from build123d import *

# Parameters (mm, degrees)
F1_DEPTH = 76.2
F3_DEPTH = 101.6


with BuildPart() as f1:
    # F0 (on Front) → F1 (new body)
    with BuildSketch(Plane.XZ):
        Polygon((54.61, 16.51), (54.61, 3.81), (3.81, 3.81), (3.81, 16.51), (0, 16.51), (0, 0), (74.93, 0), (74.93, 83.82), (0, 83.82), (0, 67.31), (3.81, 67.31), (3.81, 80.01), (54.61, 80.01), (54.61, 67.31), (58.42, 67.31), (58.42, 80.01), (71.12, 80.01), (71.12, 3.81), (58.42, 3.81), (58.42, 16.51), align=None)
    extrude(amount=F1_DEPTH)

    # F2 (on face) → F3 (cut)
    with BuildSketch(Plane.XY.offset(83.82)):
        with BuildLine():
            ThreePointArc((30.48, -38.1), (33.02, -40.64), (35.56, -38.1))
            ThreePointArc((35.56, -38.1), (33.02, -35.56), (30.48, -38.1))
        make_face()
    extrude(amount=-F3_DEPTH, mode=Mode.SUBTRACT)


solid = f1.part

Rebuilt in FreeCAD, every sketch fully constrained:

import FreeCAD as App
import Part
import Sketcher
from FreeCAD import Vector
Q = App.Units.Quantity


def add_polygon(sketch, points):
    """Adds a closed chain of lines whose ends are joined by coincident constraints."""
    first, n = sketch.GeometryCount, len(points)
    for a, b in zip(points, points[1:] + points[:1]):
        sketch.addGeometry(Part.LineSegment(App.Vector(*a, 0), App.Vector(*b, 0)), False)
    for i in range(n):
        sketch.addConstraint(Sketcher.Constraint("Coincident", first + i, 2, first + (i + 1) % n, 1))

doc = App.newDocument("Part")
params = doc.addObject("Spreadsheet::Sheet", "Params")
for row, (alias, value) in enumerate([
    ("sketch1_width", "2 in"),
    ("sketch1_height", "3 in"),
    ("sketch1_width2", "0.5 in"),
    ("sketch1_height2", "3.3 in"),
    ("sketch1_width3", "0.15 in"),
    ("pad1_length", "3 in"),
    ("sketch2_diameter", "0.2 in"),
    ("pocket1_length", "4 in"),
], start=1):
    params.set(f"A{row}", alias)
    params.set(f"B{row}", "=" + value)
    params.setAlias(f"B{row}", alias)

body = doc.addObject("PartDesign::Body", "Body")

# Sketch on XZ plane
sketch1 = body.newObject("Sketcher::SketchObject", "Sketch")
sketch1.AttachmentSupport = (doc.getObject("XZ_Plane"), [""])
sketch1.MapMode = "FlatFace"
add_polygon(sketch1, [(54.61, 16.51), (54.61, 3.81), (3.81, 3.81), (3.81, 16.51), (0, 16.51), (0, 0), (74.93, 0), (74.93, 83.82), (0, 83.82), (0, 67.31), (3.81, 67.31), (3.81, 80.01), (54.61, 80.01), (54.61, 67.31), (58.42, 67.31), (58.42, 80.01), (71.12, 80.01), (71.12, 3.81), (58.42, 3.81), (58.42, 16.51)])  # lines 0-19
sketch1.addConstraint(Sketcher.Constraint("Vertical", 0))
sketch1.addConstraint(Sketcher.Constraint("Horizontal", 1))
sketch1.addConstraint(Sketcher.Constraint("Vertical", 2))
sketch1.addConstraint(Sketcher.Constraint("Horizontal", 3))
sketch1.addConstraint(Sketcher.Constraint("Vertical", 4))
sketch1.addConstraint(Sketcher.Constraint("Horizontal", 5))
sketch1.addConstraint(Sketcher.Constraint("Vertical", 6))
sketch1.addConstraint(Sketcher.Constraint("Horizontal", 7))
sketch1.addConstraint(Sketcher.Constraint("Vertical", 8))
sketch1.addConstraint(Sketcher.Constraint("Horizontal", 9))
sketch1.addConstraint(Sketcher.Constraint("Vertical", 10))
sketch1.addConstraint(Sketcher.Constraint("Horizontal", 11))
sketch1.addConstraint(Sketcher.Constraint("Vertical", 12))
sketch1.addConstraint(Sketcher.Constraint("Horizontal", 13))
sketch1.addConstraint(Sketcher.Constraint("Vertical", 14))
sketch1.addConstraint(Sketcher.Constraint("Horizontal", 15))
sketch1.addConstraint(Sketcher.Constraint("Vertical", 16))
sketch1.addConstraint(Sketcher.Constraint("Horizontal", 17))
sketch1.addConstraint(Sketcher.Constraint("Vertical", 18))
sketch1.addConstraint(Sketcher.Constraint("Horizontal", 19))
sketch1.addConstraint(Sketcher.Constraint("Coincident", 4, 2, -1, 1))
sketch1.addConstraint(Sketcher.Constraint("PointOnObject", 7, 2, -2))
sketch1.addConstraint(Sketcher.Constraint("Horizontal", 9, 2, 12, 2))
sketch1.addConstraint(Sketcher.Constraint("Horizontal", 11, 2, 14, 2))
sketch1.addConstraint(Sketcher.Constraint("Horizontal", 1, 2, 16, 2))
sketch1.addConstraint(Sketcher.Constraint("Horizontal", 3, 2, 18, 2))
sketch1.addConstraint(Sketcher.Constraint("Vertical", 2, 2, 9, 2))
sketch1.addConstraint(Sketcher.Constraint("Vertical", 0, 2, 11, 2))
sketch1.addConstraint(Sketcher.Constraint("Vertical", 14, 2, 17, 2))
sketch1.addConstraint(Sketcher.Constraint("Equal", 9, 13))
sketch1.addConstraint(Sketcher.Constraint("Equal", 17, 0))
sketch1.addConstraint(Sketcher.Constraint("Equal", 4, 8))
sketch1.addConstraint(Sketcher.Constraint("Equal", 2, 10))
sketch1.addConstraint(Sketcher.Constraint("DistanceX", 1, 2, 1, 1, Q("2 in")))
sketch1.addConstraint(Sketcher.Constraint("DistanceY", 16, 2, 16, 1, Q("3 in")))
sketch1.addConstraint(Sketcher.Constraint("DistanceX", 15, 1, 15, 2, Q("0.5 in")))
sketch1.addConstraint(Sketcher.Constraint("DistanceY", 6, 1, 6, 2, Q("3.3 in")))
sketch1.addConstraint(Sketcher.Constraint("DistanceX", 3, 2, 3, 1, Q("0.15 in")))
sketch1.addConstraint(Sketcher.Constraint("DistanceX", 5, 1, 5, 2, Q("2.95 in")))
sketch1.setExpression("Constraints[53]", "Params.sketch1_width")
sketch1.setExpression("Constraints[54]", "Params.sketch1_height")
sketch1.setExpression("Constraints[55]", "Params.sketch1_width2")
sketch1.setExpression("Constraints[56]", "Params.sketch1_height2")
sketch1.setExpression("Constraints[57]", "Params.sketch1_width3")
pad1 = body.newObject("PartDesign::Pad", "Pad")
pad1.Profile = sketch1
pad1.setExpression("Length", "Params.pad1_length")

# Sketch on XY plane
sketch2 = body.newObject("Sketcher::SketchObject", "Sketch001")
sketch2.AttachmentSupport = (doc.getObject("XY_Plane"), [""])
sketch2.MapMode = "FlatFace"
sketch2.AttachmentOffset = App.Placement(Vector(0, 0, 3.3 * 25.4), App.Rotation())
sketch2.addGeometry(Part.Circle(Vector(33.02, -38.1, 0), Vector(0, 0, 1), 2.54), False)
sketch2.addConstraint(Sketcher.Constraint("Diameter", 0, Q("0.2 in")))
sketch2.addConstraint(Sketcher.Constraint("DistanceX", -1, 1, 0, 3, Q("1.3 in")))
sketch2.addConstraint(Sketcher.Constraint("DistanceY", 0, 3, -1, 1, Q("1.5 in")))
sketch2.setExpression("Constraints[0]", "Params.sketch2_diameter")
pocket1 = body.newObject("PartDesign::Pocket", "Pocket")
pocket1.Profile = sketch2
pocket1.setExpression("Length", "Params.pocket1_length")

doc.recompute()
